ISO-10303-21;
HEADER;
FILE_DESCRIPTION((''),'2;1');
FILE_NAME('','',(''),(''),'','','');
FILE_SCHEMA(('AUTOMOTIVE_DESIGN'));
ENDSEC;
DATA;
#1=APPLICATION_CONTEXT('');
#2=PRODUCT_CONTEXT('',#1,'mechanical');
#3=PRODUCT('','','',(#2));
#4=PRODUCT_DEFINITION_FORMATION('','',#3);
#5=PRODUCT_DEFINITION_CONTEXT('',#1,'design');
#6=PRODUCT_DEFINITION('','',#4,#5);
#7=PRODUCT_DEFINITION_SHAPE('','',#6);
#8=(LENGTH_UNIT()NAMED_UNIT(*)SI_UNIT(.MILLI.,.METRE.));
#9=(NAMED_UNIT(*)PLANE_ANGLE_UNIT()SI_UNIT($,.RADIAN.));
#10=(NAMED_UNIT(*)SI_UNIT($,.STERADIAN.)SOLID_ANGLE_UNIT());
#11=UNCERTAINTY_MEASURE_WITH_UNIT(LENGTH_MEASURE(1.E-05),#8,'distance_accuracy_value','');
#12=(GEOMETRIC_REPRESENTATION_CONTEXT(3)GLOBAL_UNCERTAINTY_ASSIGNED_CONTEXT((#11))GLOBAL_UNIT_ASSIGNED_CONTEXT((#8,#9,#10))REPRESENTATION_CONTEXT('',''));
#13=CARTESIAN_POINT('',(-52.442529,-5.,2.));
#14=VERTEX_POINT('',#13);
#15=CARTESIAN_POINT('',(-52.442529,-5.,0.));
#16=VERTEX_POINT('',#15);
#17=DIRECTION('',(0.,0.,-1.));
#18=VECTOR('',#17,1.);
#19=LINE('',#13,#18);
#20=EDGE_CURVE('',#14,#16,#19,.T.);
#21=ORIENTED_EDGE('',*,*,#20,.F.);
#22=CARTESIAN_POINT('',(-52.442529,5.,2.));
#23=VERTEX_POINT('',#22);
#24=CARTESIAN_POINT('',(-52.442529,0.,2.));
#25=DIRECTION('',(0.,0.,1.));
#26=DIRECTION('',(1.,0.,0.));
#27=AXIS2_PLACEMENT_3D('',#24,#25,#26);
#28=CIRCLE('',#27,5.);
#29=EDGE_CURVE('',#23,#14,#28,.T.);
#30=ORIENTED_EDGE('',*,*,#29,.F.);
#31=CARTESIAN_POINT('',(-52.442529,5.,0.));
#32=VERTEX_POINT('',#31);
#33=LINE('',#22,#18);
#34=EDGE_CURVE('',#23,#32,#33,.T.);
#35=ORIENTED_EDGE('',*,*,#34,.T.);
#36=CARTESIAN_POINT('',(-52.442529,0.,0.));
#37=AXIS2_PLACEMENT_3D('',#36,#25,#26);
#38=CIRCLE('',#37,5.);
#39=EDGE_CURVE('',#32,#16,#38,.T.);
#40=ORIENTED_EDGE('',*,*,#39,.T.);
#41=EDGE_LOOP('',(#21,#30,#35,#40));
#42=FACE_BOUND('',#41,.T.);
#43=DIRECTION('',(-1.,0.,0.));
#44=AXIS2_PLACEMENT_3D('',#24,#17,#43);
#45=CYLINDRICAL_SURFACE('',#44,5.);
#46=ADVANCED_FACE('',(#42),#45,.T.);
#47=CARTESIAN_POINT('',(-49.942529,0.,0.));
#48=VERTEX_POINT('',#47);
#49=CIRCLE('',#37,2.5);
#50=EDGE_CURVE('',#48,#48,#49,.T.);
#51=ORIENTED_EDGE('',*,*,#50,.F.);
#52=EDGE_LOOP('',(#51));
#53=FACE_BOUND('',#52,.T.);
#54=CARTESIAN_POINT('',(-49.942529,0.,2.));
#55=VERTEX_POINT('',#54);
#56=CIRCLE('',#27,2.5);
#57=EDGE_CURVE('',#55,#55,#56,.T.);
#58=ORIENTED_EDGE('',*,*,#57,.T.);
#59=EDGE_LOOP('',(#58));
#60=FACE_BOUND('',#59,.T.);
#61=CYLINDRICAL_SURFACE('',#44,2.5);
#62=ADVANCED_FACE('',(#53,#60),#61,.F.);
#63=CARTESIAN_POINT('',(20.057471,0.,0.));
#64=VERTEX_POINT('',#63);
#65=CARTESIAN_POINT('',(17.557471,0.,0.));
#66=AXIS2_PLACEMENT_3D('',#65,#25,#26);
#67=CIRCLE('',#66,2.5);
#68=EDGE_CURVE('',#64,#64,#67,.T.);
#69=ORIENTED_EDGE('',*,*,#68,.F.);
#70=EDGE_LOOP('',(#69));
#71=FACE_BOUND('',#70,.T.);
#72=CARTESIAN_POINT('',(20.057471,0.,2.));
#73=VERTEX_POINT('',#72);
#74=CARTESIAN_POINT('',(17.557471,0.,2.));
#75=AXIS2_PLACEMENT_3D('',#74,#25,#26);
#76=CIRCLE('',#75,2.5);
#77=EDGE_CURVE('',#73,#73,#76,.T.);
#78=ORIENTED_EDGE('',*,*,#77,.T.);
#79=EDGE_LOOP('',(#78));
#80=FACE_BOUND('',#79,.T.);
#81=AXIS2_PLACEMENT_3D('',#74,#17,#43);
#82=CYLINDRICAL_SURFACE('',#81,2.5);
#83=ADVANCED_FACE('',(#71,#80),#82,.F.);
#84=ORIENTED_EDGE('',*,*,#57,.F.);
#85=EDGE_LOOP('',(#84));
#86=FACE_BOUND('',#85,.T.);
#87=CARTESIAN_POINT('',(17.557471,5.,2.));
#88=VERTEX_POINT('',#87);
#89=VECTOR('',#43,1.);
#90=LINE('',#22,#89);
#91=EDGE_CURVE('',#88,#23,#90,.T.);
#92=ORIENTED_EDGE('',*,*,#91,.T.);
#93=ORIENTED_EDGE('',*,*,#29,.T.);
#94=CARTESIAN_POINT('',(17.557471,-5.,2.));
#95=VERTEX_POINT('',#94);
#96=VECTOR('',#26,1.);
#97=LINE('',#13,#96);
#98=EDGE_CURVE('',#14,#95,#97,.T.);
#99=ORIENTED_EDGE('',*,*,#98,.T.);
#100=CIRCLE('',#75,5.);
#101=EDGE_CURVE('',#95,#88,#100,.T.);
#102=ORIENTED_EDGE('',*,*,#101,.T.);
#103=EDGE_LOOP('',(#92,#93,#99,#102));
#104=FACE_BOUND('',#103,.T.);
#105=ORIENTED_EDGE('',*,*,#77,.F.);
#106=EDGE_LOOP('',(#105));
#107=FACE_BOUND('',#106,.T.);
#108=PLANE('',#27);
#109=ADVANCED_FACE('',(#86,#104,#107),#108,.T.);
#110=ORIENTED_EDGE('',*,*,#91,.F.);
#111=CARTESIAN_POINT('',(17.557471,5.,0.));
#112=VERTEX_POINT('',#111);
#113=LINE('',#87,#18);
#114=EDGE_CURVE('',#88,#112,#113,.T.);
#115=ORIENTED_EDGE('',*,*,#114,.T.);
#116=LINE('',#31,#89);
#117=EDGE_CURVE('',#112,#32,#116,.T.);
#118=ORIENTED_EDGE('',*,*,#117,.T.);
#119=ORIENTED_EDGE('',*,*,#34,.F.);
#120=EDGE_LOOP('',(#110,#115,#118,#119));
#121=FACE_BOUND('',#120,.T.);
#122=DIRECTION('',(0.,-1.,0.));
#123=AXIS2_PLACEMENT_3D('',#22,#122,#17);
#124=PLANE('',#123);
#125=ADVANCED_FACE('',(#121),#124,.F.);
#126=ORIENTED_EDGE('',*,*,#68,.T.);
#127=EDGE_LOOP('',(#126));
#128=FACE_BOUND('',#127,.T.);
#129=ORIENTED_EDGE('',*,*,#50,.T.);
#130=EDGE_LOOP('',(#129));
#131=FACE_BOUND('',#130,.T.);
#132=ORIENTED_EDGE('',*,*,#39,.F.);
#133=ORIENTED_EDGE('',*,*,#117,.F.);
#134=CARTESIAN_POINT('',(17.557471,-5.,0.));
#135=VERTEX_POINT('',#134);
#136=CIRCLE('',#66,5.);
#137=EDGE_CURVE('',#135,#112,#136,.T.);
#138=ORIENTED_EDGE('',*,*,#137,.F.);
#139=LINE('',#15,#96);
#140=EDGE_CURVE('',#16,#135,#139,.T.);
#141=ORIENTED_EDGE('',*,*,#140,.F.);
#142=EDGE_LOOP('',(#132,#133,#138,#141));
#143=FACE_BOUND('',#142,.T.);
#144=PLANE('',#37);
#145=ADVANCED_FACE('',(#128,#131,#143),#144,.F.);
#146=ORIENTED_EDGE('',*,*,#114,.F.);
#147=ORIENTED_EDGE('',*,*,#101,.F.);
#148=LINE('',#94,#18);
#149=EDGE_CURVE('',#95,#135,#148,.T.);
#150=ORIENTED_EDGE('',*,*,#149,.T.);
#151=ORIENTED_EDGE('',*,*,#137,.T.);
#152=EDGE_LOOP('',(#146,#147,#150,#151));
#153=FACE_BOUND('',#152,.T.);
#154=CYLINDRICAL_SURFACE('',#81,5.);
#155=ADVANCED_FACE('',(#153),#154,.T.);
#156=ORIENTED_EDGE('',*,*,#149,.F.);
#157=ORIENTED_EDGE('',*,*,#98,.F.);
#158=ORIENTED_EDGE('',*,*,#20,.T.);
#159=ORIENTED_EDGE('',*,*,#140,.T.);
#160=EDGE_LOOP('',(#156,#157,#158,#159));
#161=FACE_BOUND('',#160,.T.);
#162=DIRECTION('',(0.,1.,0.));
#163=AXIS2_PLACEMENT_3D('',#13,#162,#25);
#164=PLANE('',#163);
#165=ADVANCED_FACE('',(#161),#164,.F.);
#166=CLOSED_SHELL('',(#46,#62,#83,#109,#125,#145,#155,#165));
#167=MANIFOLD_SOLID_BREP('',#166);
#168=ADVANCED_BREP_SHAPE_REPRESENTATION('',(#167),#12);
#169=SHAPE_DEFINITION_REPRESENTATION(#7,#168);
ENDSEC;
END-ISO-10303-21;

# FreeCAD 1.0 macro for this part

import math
import FreeCAD as App
import Part
import Sketcher
Q = App.Units.Quantity

doc = App.newDocument("Part")
body = doc.addObject("PartDesign::Body", "Body")

# Sketch on XY plane
sketch1 = body.newObject("Sketcher::SketchObject", "Sketch")
sketch1.AttachmentSupport = (doc.getObject("XY_Plane"), [""])
sketch1.MapMode = "FlatFace"
sketch1.addGeometry(Part.LineSegment(App.Vector(17.6, 5, 0), App.Vector(-52.4, 5, 0)), False)
sketch1.addGeometry(Part.ArcOfCircle(Part.Circle(App.Vector(-52.4, 0, 0), App.Vector(0, 0, 1), 5), math.radians(90), math.radians(270)), False)
sketch1.addGeometry(Part.LineSegment(App.Vector(-52.4, -5, 0), App.Vector(17.6, -5, 0)), False)
sketch1.addGeometry(Part.ArcOfCircle(Part.Circle(App.Vector(17.6, 0, 0), App.Vector(0, 0, 1), 5), math.radians(-90), math.radians(90)), False)
sketch1.addGeometry(Part.Circle(App.Vector(17.6, 0, 0), App.Vector(0, 0, 1), 2.5), False)
sketch1.addGeometry(Part.Circle(App.Vector(-52.4, 0, 0), App.Vector(0, 0, 1), 2.5), False)
sketch1.addConstraint(Sketcher.Constraint("Tangent", 0, 2, 1, 1))
sketch1.addConstraint(Sketcher.Constraint("Tangent", 1, 2, 2, 1))
sketch1.addConstraint(Sketcher.Constraint("Tangent", 2, 2, 3, 1))
sketch1.addConstraint(Sketcher.Constraint("Tangent", 3, 2, 0, 1))
sketch1.addConstraint(Sketcher.Constraint("Horizontal", 0))
sketch1.addConstraint(Sketcher.Constraint("Horizontal", 2))
sketch1.addConstraint(Sketcher.Constraint("Coincident", 4, 3, 3, 3))
sketch1.addConstraint(Sketcher.Constraint("Coincident", 5, 3, 1, 3))
sketch1.addConstraint(Sketcher.Constraint("Equal", 4, 5))
sketch1.addConstraint(Sketcher.Constraint("PointOnObject", 1, 3, -1))
sketch1.addConstraint(Sketcher.Constraint("Diameter", 4, Q("5 mm")))
sketch1.addConstraint(Sketcher.Constraint("Radius", 1, Q("5 mm")))
sketch1.addConstraint(Sketcher.Constraint("DistanceX", 0, 2, 0, 1, Q("70 mm")))
sketch1.addConstraint(Sketcher.Constraint("DistanceX", 1, 3, -1, 1, Q("52.442529 mm")))
pad1 = body.newObject("PartDesign::Pad", "Pad")
pad1.Profile = sketch1
pad1.Length = 2

doc.recompute()
